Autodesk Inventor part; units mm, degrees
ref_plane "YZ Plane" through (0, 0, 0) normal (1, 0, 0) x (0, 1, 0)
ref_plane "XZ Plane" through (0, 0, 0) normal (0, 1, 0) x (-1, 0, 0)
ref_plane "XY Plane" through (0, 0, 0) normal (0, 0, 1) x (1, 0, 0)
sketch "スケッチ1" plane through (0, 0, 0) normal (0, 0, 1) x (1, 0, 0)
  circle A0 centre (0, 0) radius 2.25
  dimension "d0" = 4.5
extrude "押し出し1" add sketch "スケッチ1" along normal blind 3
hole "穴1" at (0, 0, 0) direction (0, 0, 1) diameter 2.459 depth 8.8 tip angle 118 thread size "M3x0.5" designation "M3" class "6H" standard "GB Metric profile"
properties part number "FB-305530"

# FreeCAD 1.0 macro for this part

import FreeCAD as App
import Part
import Sketcher

V = App.Vector
Q = App.Units.Quantity

doc = App.newDocument("Part")
body = doc.addObject("PartDesign::Body", "Body")

sketch1 = body.newObject("Sketcher::SketchObject", "Sketch")
sketch1.AttachmentSupport = (doc.getObject("XY_Plane"), [""])
sketch1.MapMode = "FlatFace"
sketch1.addGeometry(Part.Circle(V(0, 0, 0), V(0, 0, 1), 2.2), False)
sketch1.addConstraint(Sketcher.Constraint("Coincident", 0, 3, -1, 1))
sketch1.addConstraint(Sketcher.Constraint("Diameter", 0, Q("4.5 mm")))
pad1 = body.newObject("PartDesign::Pad", "Pad")
pad1.Profile = sketch1
pad1.Length = 3

sketch2 = body.newObject("Sketcher::SketchObject", "Sketch001")
sketch2.AttachmentSupport = (doc.getObject("XY_Plane"), [""])
sketch2.MapMode = "FlatFace"
sketch2.addGeometry(Part.Circle(V(0, 0, 0), V(0, 0, 1), 1.2), False)
sketch2.addConstraint(Sketcher.Constraint("Coincident", 0, 3, -1, 1))
sketch2.addConstraint(Sketcher.Constraint("Diameter", 0, Q("2.459 mm")))
doc.recompute()
hole = body.newObject("PartDesign::Hole", "Hole")
hole.Profile = sketch2
hole.ThreadType = "None"
hole.Diameter = 2.459
hole.DepthType = "Dimension"
hole.Depth = 8.8
hole.DrillPoint = "Angled"
hole.DrillPointAngle = 118
hole.Reversed = True

doc.recompute()
